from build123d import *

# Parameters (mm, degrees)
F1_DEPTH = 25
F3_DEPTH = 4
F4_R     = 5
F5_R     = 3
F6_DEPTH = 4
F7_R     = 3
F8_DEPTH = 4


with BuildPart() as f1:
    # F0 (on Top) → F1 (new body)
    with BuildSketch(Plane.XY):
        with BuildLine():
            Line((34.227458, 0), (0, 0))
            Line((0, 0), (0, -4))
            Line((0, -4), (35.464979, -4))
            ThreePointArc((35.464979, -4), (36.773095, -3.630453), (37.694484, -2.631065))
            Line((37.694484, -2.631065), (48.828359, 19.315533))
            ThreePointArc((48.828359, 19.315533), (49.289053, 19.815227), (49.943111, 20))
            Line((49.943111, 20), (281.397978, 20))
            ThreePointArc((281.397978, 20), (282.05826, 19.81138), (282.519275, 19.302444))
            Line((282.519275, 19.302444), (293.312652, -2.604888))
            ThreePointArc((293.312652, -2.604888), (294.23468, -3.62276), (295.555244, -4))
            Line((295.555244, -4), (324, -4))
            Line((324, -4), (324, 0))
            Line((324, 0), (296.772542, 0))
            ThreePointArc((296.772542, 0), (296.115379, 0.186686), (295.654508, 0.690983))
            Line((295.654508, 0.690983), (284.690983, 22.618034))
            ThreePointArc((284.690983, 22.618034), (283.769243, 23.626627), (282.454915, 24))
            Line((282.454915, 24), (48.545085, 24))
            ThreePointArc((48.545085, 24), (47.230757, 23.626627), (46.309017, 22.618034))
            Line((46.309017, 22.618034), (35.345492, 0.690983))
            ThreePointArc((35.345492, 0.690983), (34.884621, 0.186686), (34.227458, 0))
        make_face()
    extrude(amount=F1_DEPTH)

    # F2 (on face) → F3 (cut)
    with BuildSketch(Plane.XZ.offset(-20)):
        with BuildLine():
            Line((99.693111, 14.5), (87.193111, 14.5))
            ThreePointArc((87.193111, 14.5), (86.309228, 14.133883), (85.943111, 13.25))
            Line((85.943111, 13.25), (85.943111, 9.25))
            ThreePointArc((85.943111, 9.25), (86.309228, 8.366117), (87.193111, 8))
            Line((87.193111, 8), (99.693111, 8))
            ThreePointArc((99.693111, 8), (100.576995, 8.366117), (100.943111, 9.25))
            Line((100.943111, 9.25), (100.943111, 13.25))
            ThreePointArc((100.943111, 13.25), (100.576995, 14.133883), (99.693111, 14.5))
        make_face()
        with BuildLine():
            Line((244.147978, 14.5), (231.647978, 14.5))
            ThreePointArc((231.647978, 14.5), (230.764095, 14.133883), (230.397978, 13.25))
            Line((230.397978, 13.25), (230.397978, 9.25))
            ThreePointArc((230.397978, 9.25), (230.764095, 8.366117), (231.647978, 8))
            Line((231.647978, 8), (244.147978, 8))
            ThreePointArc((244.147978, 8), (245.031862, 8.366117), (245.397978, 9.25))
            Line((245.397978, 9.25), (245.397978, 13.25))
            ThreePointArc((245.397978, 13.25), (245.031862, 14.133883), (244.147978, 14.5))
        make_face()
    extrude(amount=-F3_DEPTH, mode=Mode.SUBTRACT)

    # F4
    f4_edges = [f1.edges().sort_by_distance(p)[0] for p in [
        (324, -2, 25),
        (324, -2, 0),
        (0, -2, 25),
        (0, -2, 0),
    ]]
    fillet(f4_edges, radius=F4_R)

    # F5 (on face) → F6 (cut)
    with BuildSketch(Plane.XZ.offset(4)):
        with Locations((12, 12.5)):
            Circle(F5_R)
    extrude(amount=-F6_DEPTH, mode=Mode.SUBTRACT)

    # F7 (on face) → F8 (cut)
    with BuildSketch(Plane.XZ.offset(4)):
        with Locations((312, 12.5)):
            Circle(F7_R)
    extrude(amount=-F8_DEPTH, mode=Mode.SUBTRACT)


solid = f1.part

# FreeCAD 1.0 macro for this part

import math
import FreeCAD as App
import Part
import Sketcher

V = App.Vector


def edges_at(feature, points):
    """Names of the edges that pass closest to the given points."""
    edges = feature.Shape.Edges
    near = lambda p: min(range(len(edges)), key=lambda i: edges[i].distToShape(Part.Vertex(*p))[0])
    return sorted({f"Edge{near(p) + 1}" for p in points})

doc = App.newDocument("Part")
params = doc.addObject("Spreadsheet::Sheet", "Params")
for row, (alias, value) in enumerate([
    ("sketch1_radius", "2.499998 mm"),
    ("sketch1_height", "4 mm"),
    ("sketch1_radius2", "1.249998 mm"),
    ("sketch1_radius3", "1.25 mm"),
    ("pad1_length", "25 mm"),
    ("sketch2_height", "4 mm"),
    ("sketch2_radius", "1.250002 mm"),
    ("sketch2_width", "12.5 mm"),
    ("pocket1_length", "4 mm"),
    ("fillet_radius", "5 mm"),
    ("sketch3_diameter", "6 mm"),
    ("pocket2_length", "4 mm"),
    ("sketch4_diameter", "6 mm"),
    ("pocket3_length", "4 mm"),
], start=1):
    params.set(f"A{row}", alias)
    params.set(f"B{row}", "=" + value)
    params.setAlias(f"B{row}", alias)

body = doc.addObject("PartDesign::Body", "Body")

# Sketch on XY plane
sketch1 = body.newObject("Sketcher::SketchObject", "Sketch")
sketch1.AttachmentSupport = (doc.getObject("XY_Plane"), [""])
sketch1.MapMode = "FlatFace"
sketch1.addGeometry(Part.LineSegment(V(34.2, 0, 0), V(0, 0, 0)), False)
sketch1.addGeometry(Part.LineSegment(V(0, 0, 0), V(0, -4, 0)), False)
sketch1.addGeometry(Part.LineSegment(V(0, -4, 0), V(35.5, -4, 0)), False)
sketch1.addGeometry(Part.ArcOfCircle(Part.Circle(V(35.5, -1.5, 0), V(0, 0, 1), 2.5), math.radians(-90), math.radians(-27)), False)
sketch1.addGeometry(Part.LineSegment(V(37.7, -2.6, 0), V(48.8, 19.3, 0)), False)
sketch1.addGeometry(Part.ArcOfCircle(Part.Circle(V(49.9, 18.8, 0), V(0, 0, 1), 1.2), math.radians(90), math.radians(153)), False)
sketch1.addGeometry(Part.LineSegment(V(49.9, 20, 0), V(281.4, 20, 0)), False)
sketch1.addGeometry(Part.ArcOfCircle(Part.Circle(V(281.4, 18.7, 0), V(0, 0, 1), 1.3), math.radians(26), math.radians(90)), False)
sketch1.addGeometry(Part.LineSegment(V(282.5, 19.3, 0), V(293.3, -2.6, 0)), False)
sketch1.addGeometry(Part.ArcOfCircle(Part.Circle(V(295.6, -1.5, 0), V(0, 0, 1), 2.5), math.radians(-154), math.radians(-90)), False)
sketch1.addGeometry(Part.LineSegment(V(295.6, -4, 0), V(324, -4, 0)), False)
sketch1.addGeometry(Part.LineSegment(V(324, -4, 0), V(324, 0, 0)), False)
sketch1.addGeometry(Part.LineSegment(V(324, 0, 0), V(296.8, 0, 0)), False)
sketch1.addGeometry(Part.ArcOfCircle(Part.Circle(V(296.8, 1.3, 0), V(0, 0, 1), 1.3), math.radians(-153), math.radians(-90)), False)
sketch1.addGeometry(Part.LineSegment(V(295.7, 0.7, 0), V(284.7, 22.6, 0)), False)
sketch1.addGeometry(Part.ArcOfCircle(Part.Circle(V(282.5, 21.5, 0), V(0, 0, 1), 2.5), math.radians(27), math.radians(90)), False)
sketch1.addGeometry(Part.LineSegment(V(282.5, 24, 0), V(48.5, 24, 0)), False)
sketch1.addGeometry(Part.ArcOfCircle(Part.Circle(V(48.5, 21.5, 0), V(0, 0, 1), 2.5), math.radians(90), math.radians(153)), False)
sketch1.addGeometry(Part.LineSegment(V(46.3, 22.6, 0), V(35.3, 0.7, 0)), False)
sketch1.addGeometry(Part.ArcOfCircle(Part.Circle(V(34.2, 1.3, 0), V(0, 0, 1), 1.3), math.radians(-90), math.radians(-27)), False)
sketch1.addConstraint(Sketcher.Constraint("Coincident", 0, 2, 1, 1))
sketch1.addConstraint(Sketcher.Constraint("Coincident", 1, 2, 2, 1))
sketch1.addConstraint(Sketcher.Constraint("Tangent", 2, 2, 3, 1))
sketch1.addConstraint(Sketcher.Constraint("Tangent", 3, 2, 4, 1))
sketch1.addConstraint(Sketcher.Constraint("Tangent", 4, 2, 5, 2))
sketch1.addConstraint(Sketcher.Constraint("Tangent", 5, 1, 6, 1))
sketch1.addConstraint(Sketcher.Constraint("Tangent", 6, 2, 7, 2))
sketch1.addConstraint(Sketcher.Constraint("Tangent", 7, 1, 8, 1))
sketch1.addConstraint(Sketcher.Constraint("Tangent", 8, 2, 9, 1))
sketch1.addConstraint(Sketcher.Constraint("Tangent", 9, 2, 10, 1))
sketch1.addConstraint(Sketcher.Constraint("Coincident", 10, 2, 11, 1))
sketch1.addConstraint(Sketcher.Constraint("Coincident", 11, 2, 12, 1))
sketch1.addConstraint(Sketcher.Constraint("Tangent", 12, 2, 13, 2))
sketch1.addConstraint(Sketcher.Constraint("Tangent", 13, 1, 14, 1))
sketch1.addConstraint(Sketcher.Constraint("Tangent", 14, 2, 15, 1))
sketch1.addConstraint(Sketcher.Constraint("Tangent", 15, 2, 16, 1))
sketch1.addConstraint(Sketcher.Constraint("Tangent", 16, 2, 17, 1))
sketch1.addConstraint(Sketcher.Constraint("Tangent", 17, 2, 18, 1))
sketch1.addConstraint(Sketcher.Constraint("Tangent", 18, 2, 19, 2))
sketch1.addConstraint(Sketcher.Constraint("Tangent", 19, 1, 0, 1))
sketch1.addConstraint(Sketcher.Constraint("Horizontal", 0))
sketch1.addConstraint(Sketcher.Constraint("Vertical", 1))
sketch1.addConstraint(Sketcher.Constraint("Horizontal", 2))
sketch1.addConstraint(Sketcher.Constraint("Horizontal", 6))
sketch1.addConstraint(Sketcher.Constraint("Horizontal", 10))
sketch1.addConstraint(Sketcher.Constraint("Vertical", 11))
sketch1.addConstraint(Sketcher.Constraint("Horizontal", 12))
sketch1.addConstraint(Sketcher.Constraint("Horizontal", 16))
sketch1.addConstraint(Sketcher.Constraint("Coincident", 0, 2, -1, 1))
sketch1.addConstraint(Sketcher.Constraint("Equal", 7, 13))
sketch1.addConstraint(Sketcher.Constraint("Equal", 9, 15))
sketch1.addConstraint(Sketcher.Constraint("Equal", 15, 17))
sketch1.addConstraint(Sketcher.Constraint("Equal", 13, 19))
sketch1.addConstraint(Sketcher.Constraint("PointOnObject", 11, 2, -1))
sketch1.addConstraint(Sketcher.Constraint("Horizontal", 2, 2, 9, 2))
sketch1.addConstraint(Sketcher.Constraint("Horizontal", 14, 2, 17, 2))
sketch1.addConstraint(Sketcher.Constraint("Radius", 9, 2.499998))
sketch1.addConstraint(Sketcher.Constraint("DistanceY", 1, 2, 1, 1, 4.0))
sketch1.addConstraint(Sketcher.Constraint("Radius", 5, 1.249998))
sketch1.addConstraint(Sketcher.Constraint("Radius", 13, 1.25))
sketch1.addConstraint(Sketcher.Constraint("DistanceY", -1, 1, 5, 1, 20.0))
sketch1.addConstraint(Sketcher.Constraint("DistanceX", -1, 1, 10, 2, 324.0))
sketch1.addConstraint(Sketcher.Constraint("DistanceY", -1, 1, 15, 2, 24.0))
sketch1.addConstraint(Sketcher.Constraint("DistanceY", 3, 3, 5, 3, 20.249998))
sketch1.addConstraint(Sketcher.Constraint("DistanceX", 3, 3, 7, 3, 245.933))
sketch1.addConstraint(Sketcher.Constraint("DistanceX", 2, 1, 2, 2, 35.464979))
sketch1.addConstraint(Sketcher.Constraint("DistanceX", 12, 2, 12, 1, 27.227458))
sketch1.addConstraint(Sketcher.Constraint("DistanceX", 16, 2, 16, 1, 233.90983))
sketch1.addConstraint(Sketcher.Constraint("DistanceX", 9, 3, 13, 3, 1.217298))
sketch1.addConstraint(Sketcher.Constraint("DistanceX", 3, 2, 17, 3, 10.850601))
sketch1.addConstraint(Sketcher.Constraint("DistanceX", 19, 3, 4, 2, 14.600901))
sketch1.setExpression("Constraints[36]", "Params.sketch1_radius")
sketch1.setExpression("Constraints[37]", "Params.sketch1_height")
sketch1.setExpression("Constraints[38]", "Params.sketch1_radius2")
sketch1.setExpression("Constraints[39]", "Params.sketch1_radius3")
pad1 = body.newObject("PartDesign::Pad", "Pad")
pad1.Profile = sketch1
pad1.setExpression("Length", "Params.pad1_length")

# Sketch on XZ plane
sketch2 = body.newObject("Sketcher::SketchObject", "Sketch001")
sketch2.AttachmentSupport = (doc.getObject("XZ_Plane"), [""])
sketch2.MapMode = "FlatFace"
sketch2.AttachmentOffset = App.Placement(V(0, 0, -20), App.Rotation())
sketch2.addGeometry(Part.LineSegment(V(99.7, 14.5, 0), V(87.2, 14.5, 0)), False)
sketch2.addGeometry(Part.ArcOfCircle(Part.Circle(V(87.2, 13.2, 0), V(0, 0, 1), 1.3), math.radians(90), math.radians(180)), False)
sketch2.addGeometry(Part.LineSegment(V(85.9, 13.2, 0), V(85.9, 9.2, 0)), False)
sketch2.addGeometry(Part.ArcOfCircle(Part.Circle(V(87.2, 9.3, 0), V(0, 0, 1), 1.3), math.radians(-180), math.radians(-90)), False)
sketch2.addGeometry(Part.LineSegment(V(87.2, 8, 0), V(99.7, 8, 0)), False)
sketch2.addGeometry(Part.ArcOfCircle(Part.Circle(V(99.7, 9.2, 0), V(0, 0, 1), 1.2), math.radians(-90), math.radians(0)), False)
sketch2.addGeometry(Part.LineSegment(V(100.9, 9.2, 0), V(100.9, 13.2, 0)), False)
sketch2.addGeometry(Part.ArcOfCircle(Part.Circle(V(99.7, 13.3, 0), V(0, 0, 1), 1.2), math.radians(0), math.radians(90)), False)
sketch2.addGeometry(Part.LineSegment(V(244.1, 14.5, 0), V(231.6, 14.5, 0)), False)
sketch2.addGeometry(Part.ArcOfCircle(Part.Circle(V(231.6, 13.2, 0), V(0, 0, 1), 1.3), math.radians(90), math.radians(180)), False)
sketch2.addGeometry(Part.LineSegment(V(230.4, 13.2, 0), V(230.4, 9.2, 0)), False)
sketch2.addGeometry(Part.ArcOfCircle(Part.Circle(V(231.6, 9.3, 0), V(0, 0, 1), 1.3), math.radians(-180), math.radians(-90)), False)
sketch2.addGeometry(Part.LineSegment(V(231.6, 8, 0), V(244.1, 8, 0)), False)
sketch2.addGeometry(Part.ArcOfCircle(Part.Circle(V(244.1, 9.2, 0), V(0, 0, 1), 1.2), math.radians(-90), math.radians(0)), False)
sketch2.addGeometry(Part.LineSegment(V(245.4, 9.2, 0), V(245.4, 13.2, 0)), False)
sketch2.addGeometry(Part.ArcOfCircle(Part.Circle(V(244.1, 13.3, 0), V(0, 0, 1), 1.2), math.radians(0), math.radians(90)), False)
sketch2.addConstraint(Sketcher.Constraint("Tangent", 0, 2, 1, 1))
sketch2.addConstraint(Sketcher.Constraint("Tangent", 1, 2, 2, 1))
sketch2.addConstraint(Sketcher.Constraint("Tangent", 2, 2, 3, 1))
sketch2.addConstraint(Sketcher.Constraint("Tangent", 3, 2, 4, 1))
sketch2.addConstraint(Sketcher.Constraint("Tangent", 4, 2, 5, 1))
sketch2.addConstraint(Sketcher.Constraint("Tangent", 5, 2, 6, 1))
sketch2.addConstraint(Sketcher.Constraint("Tangent", 6, 2, 7, 1))
sketch2.addConstraint(Sketcher.Constraint("Tangent", 7, 2, 0, 1))
sketch2.addConstraint(Sketcher.Constraint("Tangent", 8, 2, 9, 1))
sketch2.addConstraint(Sketcher.Constraint("Tangent", 9, 2, 10, 1))
sketch2.addConstraint(Sketcher.Constraint("Tangent", 10, 2, 11, 1))
sketch2.addConstraint(Sketcher.Constraint("Tangent", 11, 2, 12, 1))
sketch2.addConstraint(Sketcher.Constraint("Tangent", 12, 2, 13, 1))
sketch2.addConstraint(Sketcher.Constraint("Tangent", 13, 2, 14, 1))
sketch2.addConstraint(Sketcher.Constraint("Tangent", 14, 2, 15, 1))
sketch2.addConstraint(Sketcher.Constraint("Tangent", 15, 2, 8, 1))
sketch2.addConstraint(Sketcher.Constraint("Horizontal", 0))
sketch2.addConstraint(Sketcher.Constraint("Vertical", 2))
sketch2.addConstraint(Sketcher.Constraint("Horizontal", 4))
sketch2.addConstraint(Sketcher.Constraint("Vertical", 6))
sketch2.addConstraint(Sketcher.Constraint("Horizontal", 8))
sketch2.addConstraint(Sketcher.Constraint("Vertical", 10))
sketch2.addConstraint(Sketcher.Constraint("Horizontal", 12))
sketch2.addConstraint(Sketcher.Constraint("Vertical", 14))
sketch2.addConstraint(Sketcher.Constraint("Equal", 1, 3))
sketch2.addConstraint(Sketcher.Constraint("Equal", 3, 5))
sketch2.addConstraint(Sketcher.Constraint("Equal", 5, 7))
sketch2.addConstraint(Sketcher.Constraint("Equal", 7, 9))
sketch2.addConstraint(Sketcher.Constraint("Equal", 9, 11))
sketch2.addConstraint(Sketcher.Constraint("Equal", 11, 13))
sketch2.addConstraint(Sketcher.Constraint("Equal", 13, 15))
sketch2.addConstraint(Sketcher.Constraint("Horizontal", 7, 3, 9, 3))
sketch2.addConstraint(Sketcher.Constraint("Horizontal", 5, 3, 11, 3))
sketch2.addConstraint(Sketcher.Constraint("Equal", 4, 8))
sketch2.addConstraint(Sketcher.Constraint("DistanceY", 2, 2, 2, 1, 4.0))
sketch2.addConstraint(Sketcher.Constraint("Radius", 1, 1.250002))
sketch2.addConstraint(Sketcher.Constraint("DistanceX", 0, 2, 0, 1, 12.5))
sketch2.addConstraint(Sketcher.Constraint("DistanceY", -1, 1, 3, 2, 8.0))
sketch2.addConstraint(Sketcher.Constraint("DistanceX", -1, 1, 5, 3, 99.693111))
sketch2.addConstraint(Sketcher.Constraint("DistanceX", -1, 1, 9, 3, 231.64798))
sketch2.setExpression("Constraints[34]", "Params.sketch2_height")
sketch2.setExpression("Constraints[35]", "Params.sketch2_radius")
sketch2.setExpression("Constraints[36]", "Params.sketch2_width")
pocket1 = body.newObject("PartDesign::Pocket", "Pocket")
pocket1.Profile = sketch2
pocket1.setExpression("Length", "Params.pocket1_length")
doc.recompute()

fillet = body.newObject("PartDesign::Fillet", "Fillet")
fillet.Base = (pocket1, edges_at(pocket1, [
    (324, -2, 25),
    (324, -2, 0),
    (0, -2, 25),
    (0, -2, 0),
]))
fillet.setExpression("Radius", "Params.fillet_radius")

# Sketch on XZ plane
sketch3 = body.newObject("Sketcher::SketchObject", "Sketch002")
sketch3.AttachmentSupport = (doc.getObject("XZ_Plane"), [""])
sketch3.MapMode = "FlatFace"
sketch3.AttachmentOffset = App.Placement(V(0, 0, 4), App.Rotation())
sketch3.addGeometry(Part.Circle(V(12, 12.5, 0), V(0, 0, 1), 3), False)
sketch3.addConstraint(Sketcher.Constraint("Diameter", 0, 6.0))
sketch3.addConstraint(Sketcher.Constraint("DistanceX", -1, 1, 0, 3, 12.0))
sketch3.addConstraint(Sketcher.Constraint("DistanceY", -1, 1, 0, 3, 12.5))
sketch3.setExpression("Constraints[0]", "Params.sketch3_diameter")
pocket2 = body.newObject("PartDesign::Pocket", "Pocket001")
pocket2.Profile = sketch3
pocket2.setExpression("Length", "Params.pocket2_length")

# Sketch on XZ plane
sketch4 = body.newObject("Sketcher::SketchObject", "Sketch003")
sketch4.AttachmentSupport = (doc.getObject("XZ_Plane"), [""])
sketch4.MapMode = "FlatFace"
sketch4.AttachmentOffset = App.Placement(V(0, 0, 4), App.Rotation())
sketch4.addGeometry(Part.Circle(V(312, 12.5, 0), V(0, 0, 1), 3), False)
sketch4.addConstraint(Sketcher.Constraint("Diameter", 0, 6.0))
sketch4.addConstraint(Sketcher.Constraint("DistanceX", -1, 1, 0, 3, 312.0))
sketch4.addConstraint(Sketcher.Constraint("DistanceY", -1, 1, 0, 3, 12.5))
sketch4.setExpression("Constraints[0]", "Params.sketch4_diameter")
pocket3 = body.newObject("PartDesign::Pocket", "Pocket002")
pocket3.Profile = sketch4
pocket3.setExpression("Length", "Params.pocket3_length")

doc.recompute()
